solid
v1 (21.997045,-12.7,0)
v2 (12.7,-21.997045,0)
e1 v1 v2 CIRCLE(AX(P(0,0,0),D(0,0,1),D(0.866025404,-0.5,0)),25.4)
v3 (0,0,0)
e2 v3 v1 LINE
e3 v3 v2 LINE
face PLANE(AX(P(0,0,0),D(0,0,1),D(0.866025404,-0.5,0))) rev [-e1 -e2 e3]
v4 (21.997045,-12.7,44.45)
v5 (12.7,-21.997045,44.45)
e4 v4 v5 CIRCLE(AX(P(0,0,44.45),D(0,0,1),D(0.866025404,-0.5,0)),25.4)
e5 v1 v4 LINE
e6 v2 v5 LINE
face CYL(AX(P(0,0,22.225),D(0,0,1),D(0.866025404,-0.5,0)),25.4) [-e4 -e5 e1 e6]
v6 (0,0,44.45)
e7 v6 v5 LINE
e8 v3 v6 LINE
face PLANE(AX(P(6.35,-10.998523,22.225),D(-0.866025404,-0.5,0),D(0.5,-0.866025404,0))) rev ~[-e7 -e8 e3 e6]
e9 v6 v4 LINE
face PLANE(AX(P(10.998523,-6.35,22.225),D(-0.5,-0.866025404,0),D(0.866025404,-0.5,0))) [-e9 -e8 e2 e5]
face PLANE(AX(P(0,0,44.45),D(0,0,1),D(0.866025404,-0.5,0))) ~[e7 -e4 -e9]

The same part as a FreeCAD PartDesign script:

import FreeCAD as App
import Part
import Sketcher

V = App.Vector
Q = App.Units.Quantity


def add_polygon(sketch, points):
    """Adds a closed chain of lines whose ends are joined by coincident constraints."""
    first, n = sketch.GeometryCount, len(points)
    for a, b in zip(points, points[1:] + points[:1]):
        sketch.addGeometry(Part.LineSegment(App.Vector(*a, 0), App.Vector(*b, 0)), False)
    for i in range(n):
        sketch.addConstraint(Sketcher.Constraint("Coincident", first + i, 2, first + (i + 1) % n, 1))

doc = App.newDocument("Part")
params = doc.addObject("Spreadsheet::Sheet", "Params")
for row, (alias, value) in enumerate([
    ("sketch1_width", "1 in"),
    ("sketch1_height", "1.75 in"),
    ("revolution_angle", "330 deg"),
], start=1):
    params.set(f"A{row}", alias)
    params.set(f"B{row}", "=" + value)
    params.setAlias(f"B{row}", alias)

body = doc.addObject("PartDesign::Body", "Body")

# Sketch on an angled plane
sketch1 = doc.addObject("Sketcher::SketchObject", "Sketch")
body.addObject(sketch1)
sketch1.Placement = App.Placement(V(0, 0, 0), App.Rotation(V(0.866025404, -0.5, 0), V(0, 0, 1), V(-0.5, -0.866025404, 0), "ZXY"))
add_polygon(sketch1, [(0, 44.45), (0, 0), (25.4, 0), (25.4, 44.45)])  # lines 0-3
sketch1.addConstraint([
    Sketcher.Constraint("Vertical", 0),
    Sketcher.Constraint("Horizontal", 1),
    Sketcher.Constraint("Vertical", 2),
    Sketcher.Constraint("Horizontal", 3),
    Sketcher.Constraint("Coincident", 0, 2, -1, 1),
    Sketcher.Constraint("DistanceX", 1, 1, 1, 2, Q("1 in")),
    Sketcher.Constraint("DistanceY", 0, 2, 0, 1, Q("1.75 in")),
])
sketch1.setExpression("Constraints[9]", "Params.sketch1_width")
sketch1.setExpression("Constraints[10]", "Params.sketch1_height")
revolution = doc.addObject("PartDesign::Revolution", "Revolution")
body.addObject(revolution)
revolution.Profile = sketch1
revolution.ReferenceAxis = (sketch1, ["V_Axis"])
revolution.setExpression("Angle", "Params.revolution_angle")

doc.recompute()
